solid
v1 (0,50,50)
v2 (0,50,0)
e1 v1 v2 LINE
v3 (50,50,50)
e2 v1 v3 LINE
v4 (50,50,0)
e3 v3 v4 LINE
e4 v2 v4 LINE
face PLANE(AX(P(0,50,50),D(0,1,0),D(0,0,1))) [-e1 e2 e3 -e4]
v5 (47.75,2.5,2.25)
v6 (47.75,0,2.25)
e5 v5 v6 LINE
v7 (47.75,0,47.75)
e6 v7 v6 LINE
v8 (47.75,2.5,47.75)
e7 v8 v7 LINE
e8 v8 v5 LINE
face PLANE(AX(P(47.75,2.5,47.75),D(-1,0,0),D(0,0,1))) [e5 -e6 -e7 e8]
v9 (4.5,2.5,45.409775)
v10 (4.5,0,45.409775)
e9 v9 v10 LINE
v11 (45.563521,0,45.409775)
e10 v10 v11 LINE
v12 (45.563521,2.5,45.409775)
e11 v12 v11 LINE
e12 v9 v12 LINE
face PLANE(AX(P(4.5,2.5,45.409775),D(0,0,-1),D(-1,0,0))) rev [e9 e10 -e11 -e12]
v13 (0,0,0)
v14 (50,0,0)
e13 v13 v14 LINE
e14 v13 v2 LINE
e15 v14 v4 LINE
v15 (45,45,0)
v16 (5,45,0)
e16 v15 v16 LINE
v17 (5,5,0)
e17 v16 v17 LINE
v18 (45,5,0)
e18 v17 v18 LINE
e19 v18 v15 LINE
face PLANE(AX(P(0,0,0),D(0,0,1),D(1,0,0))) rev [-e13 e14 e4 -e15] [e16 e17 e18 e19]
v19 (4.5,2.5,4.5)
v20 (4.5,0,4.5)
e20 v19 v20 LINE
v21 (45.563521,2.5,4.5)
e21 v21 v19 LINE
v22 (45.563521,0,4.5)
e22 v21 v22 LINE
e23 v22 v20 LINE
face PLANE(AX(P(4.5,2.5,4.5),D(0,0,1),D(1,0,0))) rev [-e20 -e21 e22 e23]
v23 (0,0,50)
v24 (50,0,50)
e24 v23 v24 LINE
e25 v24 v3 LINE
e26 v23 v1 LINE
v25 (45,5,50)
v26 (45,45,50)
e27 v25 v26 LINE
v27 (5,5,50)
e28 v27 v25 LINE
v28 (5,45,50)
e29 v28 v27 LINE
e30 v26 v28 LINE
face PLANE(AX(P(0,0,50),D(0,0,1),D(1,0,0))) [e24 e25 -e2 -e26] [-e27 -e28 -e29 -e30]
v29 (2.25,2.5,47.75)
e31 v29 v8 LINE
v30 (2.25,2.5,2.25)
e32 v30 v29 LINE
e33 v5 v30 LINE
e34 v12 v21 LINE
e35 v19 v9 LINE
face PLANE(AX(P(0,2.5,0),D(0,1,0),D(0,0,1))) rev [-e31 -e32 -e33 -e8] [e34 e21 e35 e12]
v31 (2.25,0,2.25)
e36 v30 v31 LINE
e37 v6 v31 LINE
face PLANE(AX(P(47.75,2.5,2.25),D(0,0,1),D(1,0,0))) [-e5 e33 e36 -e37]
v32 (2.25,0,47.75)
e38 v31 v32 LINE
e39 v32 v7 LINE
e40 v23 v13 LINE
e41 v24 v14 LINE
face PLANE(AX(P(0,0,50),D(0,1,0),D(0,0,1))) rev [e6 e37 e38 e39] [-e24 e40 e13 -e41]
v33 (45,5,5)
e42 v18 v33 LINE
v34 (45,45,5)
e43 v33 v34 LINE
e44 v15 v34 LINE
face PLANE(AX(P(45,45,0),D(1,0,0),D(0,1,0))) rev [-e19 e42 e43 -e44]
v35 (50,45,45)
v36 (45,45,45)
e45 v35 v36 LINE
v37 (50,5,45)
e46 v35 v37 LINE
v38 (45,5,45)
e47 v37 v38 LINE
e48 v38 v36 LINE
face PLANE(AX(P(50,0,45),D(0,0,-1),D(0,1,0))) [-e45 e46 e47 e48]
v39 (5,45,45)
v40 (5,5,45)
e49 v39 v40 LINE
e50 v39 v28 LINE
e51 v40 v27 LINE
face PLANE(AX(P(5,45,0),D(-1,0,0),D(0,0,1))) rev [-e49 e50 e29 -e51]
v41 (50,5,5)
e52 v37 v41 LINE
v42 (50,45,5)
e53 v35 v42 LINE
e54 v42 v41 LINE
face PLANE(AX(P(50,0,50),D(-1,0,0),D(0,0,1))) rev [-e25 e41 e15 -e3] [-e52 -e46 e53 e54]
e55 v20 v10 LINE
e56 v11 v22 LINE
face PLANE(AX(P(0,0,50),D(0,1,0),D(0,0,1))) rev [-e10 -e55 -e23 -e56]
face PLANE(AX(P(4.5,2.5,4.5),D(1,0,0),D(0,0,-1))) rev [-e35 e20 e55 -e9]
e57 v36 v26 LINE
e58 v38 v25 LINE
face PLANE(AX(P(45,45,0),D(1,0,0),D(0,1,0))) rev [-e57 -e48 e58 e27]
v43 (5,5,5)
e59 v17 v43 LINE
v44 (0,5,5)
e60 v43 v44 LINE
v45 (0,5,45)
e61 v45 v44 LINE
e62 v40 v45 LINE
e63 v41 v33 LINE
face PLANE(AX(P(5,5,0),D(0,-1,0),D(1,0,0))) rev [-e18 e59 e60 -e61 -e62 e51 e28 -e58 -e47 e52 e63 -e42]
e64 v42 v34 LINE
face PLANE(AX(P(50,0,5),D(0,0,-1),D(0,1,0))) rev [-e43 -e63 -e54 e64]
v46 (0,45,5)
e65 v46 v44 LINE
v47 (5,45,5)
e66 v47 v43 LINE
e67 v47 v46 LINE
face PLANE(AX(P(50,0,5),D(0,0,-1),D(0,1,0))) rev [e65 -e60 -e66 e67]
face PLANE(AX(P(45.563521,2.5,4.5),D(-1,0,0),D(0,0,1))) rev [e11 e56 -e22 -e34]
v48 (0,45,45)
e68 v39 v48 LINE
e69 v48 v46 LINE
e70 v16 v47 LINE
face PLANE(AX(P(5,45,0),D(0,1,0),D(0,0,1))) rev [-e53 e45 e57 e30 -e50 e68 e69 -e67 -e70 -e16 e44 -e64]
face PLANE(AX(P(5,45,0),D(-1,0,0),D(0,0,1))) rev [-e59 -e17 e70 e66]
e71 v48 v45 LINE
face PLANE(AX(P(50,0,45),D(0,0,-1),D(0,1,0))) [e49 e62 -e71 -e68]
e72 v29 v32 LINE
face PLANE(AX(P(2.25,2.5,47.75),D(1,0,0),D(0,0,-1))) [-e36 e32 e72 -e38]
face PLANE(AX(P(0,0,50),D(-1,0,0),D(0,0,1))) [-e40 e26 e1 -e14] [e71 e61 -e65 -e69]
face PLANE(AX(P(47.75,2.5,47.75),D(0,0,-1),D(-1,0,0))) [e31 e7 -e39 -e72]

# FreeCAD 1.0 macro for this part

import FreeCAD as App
import Part
import Sketcher
Q = App.Units.Quantity

doc = App.newDocument("Part")
params = doc.addObject("Spreadsheet::Sheet", "Params")
for row, (alias, value) in enumerate([
    ("sketch1_width", "50 mm"),
    ("pad1_length", "50 mm"),
    ("sketch2_width", "40 mm"),
    ("pocket1_length", "50 mm"),
    ("sketch3_width", "40 mm"),
    ("pocket2_length", "50 mm"),
    ("sketch4_width", "45.5 mm"),
    ("pocket3_length", "2.5 mm"),
], start=1):
    params.set(f"A{row}", alias)
    params.set(f"B{row}", "=" + value)
    params.setAlias(f"B{row}", alias)

body = doc.addObject("PartDesign::Body", "Body")

# Sketch on XY plane
sketch1 = body.newObject("Sketcher::SketchObject", "Sketch")
sketch1.AttachmentSupport = (doc.getObject("XY_Plane"), [""])
sketch1.MapMode = "FlatFace"
sketch1.addGeometry([
    Part.LineSegment(App.Vector(0, 50, 0), App.Vector(0, 0, 0)),
    Part.LineSegment(App.Vector(0, 0, 0), App.Vector(50, 0, 0)),
    Part.LineSegment(App.Vector(50, 0, 0), App.Vector(50, 50, 0)),
    Part.LineSegment(App.Vector(50, 50, 0), App.Vector(0, 50, 0)),
], False)
sketch1.addConstraint([
    Sketcher.Constraint("Coincident", 0, 2, 1, 1),
    Sketcher.Constraint("Coincident", 1, 2, 2, 1),
    Sketcher.Constraint("Coincident", 2, 2, 3, 1),
    Sketcher.Constraint("Coincident", 3, 2, 0, 1),
    Sketcher.Constraint("Vertical", 0),
    Sketcher.Constraint("Horizontal", 1),
    Sketcher.Constraint("Vertical", 2),
    Sketcher.Constraint("Horizontal", 3),
    Sketcher.Constraint("Coincident", 0, 2, -1, 1),
    Sketcher.Constraint("Equal", 3, 0),
    Sketcher.Constraint("DistanceX", 1, 1, 1, 2, Q("50 mm")),
])
sketch1.setExpression("Constraints[10]", "Params.sketch1_width")
pad1 = body.newObject("PartDesign::Pad", "Pad")
pad1.Profile = sketch1
pad1.setExpression("Length", "Params.pad1_length")

# Sketch on XY plane
sketch2 = body.newObject("Sketcher::SketchObject", "Sketch001")
sketch2.AttachmentSupport = (doc.getObject("XY_Plane"), [""])
sketch2.MapMode = "FlatFace"
sketch2.AttachmentOffset = App.Placement(App.Vector(0, 0, 50), App.Rotation())
sketch2.addGeometry([
    Part.LineSegment(App.Vector(5, 45, 0), App.Vector(5, 5, 0)),
    Part.LineSegment(App.Vector(5, 5, 0), App.Vector(45, 5, 0)),
    Part.LineSegment(App.Vector(45, 5, 0), App.Vector(45, 45, 0)),
    Part.LineSegment(App.Vector(45, 45, 0), App.Vector(5, 45, 0)),
], False)
sketch2.addConstraint([
    Sketcher.Constraint("Coincident", 0, 2, 1, 1),
    Sketcher.Constraint("Coincident", 1, 2, 2, 1),
    Sketcher.Constraint("Coincident", 2, 2, 3, 1),
    Sketcher.Constraint("Coincident", 3, 2, 0, 1),
    Sketcher.Constraint("Vertical", 0),
    Sketcher.Constraint("Horizontal", 1),
    Sketcher.Constraint("Vertical", 2),
    Sketcher.Constraint("Horizontal", 3),
    Sketcher.Constraint("Equal", 3, 0),
    Sketcher.Constraint("DistanceX", 1, 1, 1, 2, Q("40 mm")),
    Sketcher.Constraint("DistanceX", -1, 1, 0, 2, Q("5 mm")),
    Sketcher.Constraint("DistanceY", -1, 1, 0, 2, Q("5 mm")),
])
sketch2.setExpression("Constraints[9]", "Params.sketch2_width")
pocket1 = body.newObject("PartDesign::Pocket", "Pocket")
pocket1.Profile = sketch2
pocket1.setExpression("Length", "Params.pocket1_length")

# Sketch on YZ plane
sketch3 = body.newObject("Sketcher::SketchObject", "Sketch002")
sketch3.AttachmentSupport = (doc.getObject("YZ_Plane"), [""])
sketch3.MapMode = "FlatFace"
sketch3.addGeometry([
    Part.LineSegment(App.Vector(45, 45, 0), App.Vector(5, 45, 0)),
    Part.LineSegment(App.Vector(5, 45, 0), App.Vector(5, 5, 0)),
    Part.LineSegment(App.Vector(5, 5, 0), App.Vector(45, 5, 0)),
    Part.LineSegment(App.Vector(45, 5, 0), App.Vector(45, 45, 0)),
], False)
sketch3.addConstraint([
    Sketcher.Constraint("Coincident", 0, 2, 1, 1),
    Sketcher.Constraint("Coincident", 1, 2, 2, 1),
    Sketcher.Constraint("Coincident", 2, 2, 3, 1),
    Sketcher.Constraint("Coincident", 3, 2, 0, 1),
    Sketcher.Constraint("Horizontal", 0),
    Sketcher.Constraint("Vertical", 1),
    Sketcher.Constraint("Horizontal", 2),
    Sketcher.Constraint("Vertical", 3),
    Sketcher.Constraint("Equal", 2, 1),
    Sketcher.Constraint("DistanceX", 0, 2, 0, 1, Q("40 mm")),
    Sketcher.Constraint("DistanceX", -1, 1, 0, 2, Q("5 mm")),
    Sketcher.Constraint("DistanceY", -1, 1, 0, 2, Q("45 mm")),
])
sketch3.setExpression("Constraints[9]", "Params.sketch3_width")
pocket2 = body.newObject("PartDesign::Pocket", "Pocket001")
pocket2.Profile = sketch3
pocket2.setExpression("Length", "Params.pocket2_length")
pocket2.Reversed = True

# Sketch on XZ plane
sketch4 = body.newObject("Sketcher::SketchObject", "Sketch003")
sketch4.AttachmentSupport = (doc.getObject("XZ_Plane"), [""])
sketch4.MapMode = "FlatFace"
sketch4.addGeometry([
    Part.LineSegment(App.Vector(2, 2, 0), App.Vector(2, 48, 0)),  # 0
    Part.LineSegment(App.Vector(2, 48, 0), App.Vector(48, 48, 0)),  # 1
    Part.LineSegment(App.Vector(48, 48, 0), App.Vector(48, 2, 0)),  # 2
    Part.LineSegment(App.Vector(48, 2, 0), App.Vector(2, 2, 0)),  # 3
    Part.LineSegment(App.Vector(46, 45, 0), App.Vector(4, 45, 0)),  # 4
    Part.LineSegment(App.Vector(4, 45, 0), App.Vector(4, 4, 0)),  # 5
    Part.LineSegment(App.Vector(4, 4, 0), App.Vector(46, 4, 0)),  # 6
    Part.LineSegment(App.Vector(46, 4, 0), App.Vector(46, 45, 0)),  # 7
], False)
sketch4.addConstraint([
    Sketcher.Constraint("Coincident", 0, 2, 1, 1),
    Sketcher.Constraint("Coincident", 1, 2, 2, 1),
    Sketcher.Constraint("Coincident", 2, 2, 3, 1),
    Sketcher.Constraint("Coincident", 3, 2, 0, 1),
    Sketcher.Constraint("Coincident", 4, 2, 5, 1),
    Sketcher.Constraint("Coincident", 5, 2, 6, 1),
    Sketcher.Constraint("Coincident", 6, 2, 7, 1),
    Sketcher.Constraint("Coincident", 7, 2, 4, 1),
    Sketcher.Constraint("Vertical", 0),
    Sketcher.Constraint("Horizontal", 1),
    Sketcher.Constraint("Vertical", 2),
    Sketcher.Constraint("Horizontal", 3),
    Sketcher.Constraint("Horizontal", 4),
    Sketcher.Constraint("Vertical", 5),
    Sketcher.Constraint("Horizontal", 6),
    Sketcher.Constraint("Vertical", 7),
    Sketcher.Constraint("Equal", 3, 0),
    Sketcher.Constraint("DistanceX", 1, 1, 1, 2, Q("45.5 mm")),
    Sketcher.Constraint("DistanceX", -1, 1, 4, 2, Q("4.5 mm")),
    Sketcher.Constraint("DistanceY", -1, 1, 5, 2, Q("4.5 mm")),
    Sketcher.Constraint("DistanceX", -1, 1, 0, 2, Q("2.25 mm")),
    Sketcher.Constraint("DistanceY", -1, 1, 0, 2, Q("47.75 mm")),
    Sketcher.Constraint("DistanceX", 4, 2, 4, 1, Q("41.063521 mm")),
    Sketcher.Constraint("DistanceY", 5, 2, 5, 1, Q("40.909775 mm")),
])
sketch4.setExpression("Constraints[17]", "Params.sketch4_width")
pocket3 = body.newObject("PartDesign::Pocket", "Pocket002")
pocket3.Profile = sketch4
pocket3.setExpression("Length", "Params.pocket3_length")

doc.recompute()
